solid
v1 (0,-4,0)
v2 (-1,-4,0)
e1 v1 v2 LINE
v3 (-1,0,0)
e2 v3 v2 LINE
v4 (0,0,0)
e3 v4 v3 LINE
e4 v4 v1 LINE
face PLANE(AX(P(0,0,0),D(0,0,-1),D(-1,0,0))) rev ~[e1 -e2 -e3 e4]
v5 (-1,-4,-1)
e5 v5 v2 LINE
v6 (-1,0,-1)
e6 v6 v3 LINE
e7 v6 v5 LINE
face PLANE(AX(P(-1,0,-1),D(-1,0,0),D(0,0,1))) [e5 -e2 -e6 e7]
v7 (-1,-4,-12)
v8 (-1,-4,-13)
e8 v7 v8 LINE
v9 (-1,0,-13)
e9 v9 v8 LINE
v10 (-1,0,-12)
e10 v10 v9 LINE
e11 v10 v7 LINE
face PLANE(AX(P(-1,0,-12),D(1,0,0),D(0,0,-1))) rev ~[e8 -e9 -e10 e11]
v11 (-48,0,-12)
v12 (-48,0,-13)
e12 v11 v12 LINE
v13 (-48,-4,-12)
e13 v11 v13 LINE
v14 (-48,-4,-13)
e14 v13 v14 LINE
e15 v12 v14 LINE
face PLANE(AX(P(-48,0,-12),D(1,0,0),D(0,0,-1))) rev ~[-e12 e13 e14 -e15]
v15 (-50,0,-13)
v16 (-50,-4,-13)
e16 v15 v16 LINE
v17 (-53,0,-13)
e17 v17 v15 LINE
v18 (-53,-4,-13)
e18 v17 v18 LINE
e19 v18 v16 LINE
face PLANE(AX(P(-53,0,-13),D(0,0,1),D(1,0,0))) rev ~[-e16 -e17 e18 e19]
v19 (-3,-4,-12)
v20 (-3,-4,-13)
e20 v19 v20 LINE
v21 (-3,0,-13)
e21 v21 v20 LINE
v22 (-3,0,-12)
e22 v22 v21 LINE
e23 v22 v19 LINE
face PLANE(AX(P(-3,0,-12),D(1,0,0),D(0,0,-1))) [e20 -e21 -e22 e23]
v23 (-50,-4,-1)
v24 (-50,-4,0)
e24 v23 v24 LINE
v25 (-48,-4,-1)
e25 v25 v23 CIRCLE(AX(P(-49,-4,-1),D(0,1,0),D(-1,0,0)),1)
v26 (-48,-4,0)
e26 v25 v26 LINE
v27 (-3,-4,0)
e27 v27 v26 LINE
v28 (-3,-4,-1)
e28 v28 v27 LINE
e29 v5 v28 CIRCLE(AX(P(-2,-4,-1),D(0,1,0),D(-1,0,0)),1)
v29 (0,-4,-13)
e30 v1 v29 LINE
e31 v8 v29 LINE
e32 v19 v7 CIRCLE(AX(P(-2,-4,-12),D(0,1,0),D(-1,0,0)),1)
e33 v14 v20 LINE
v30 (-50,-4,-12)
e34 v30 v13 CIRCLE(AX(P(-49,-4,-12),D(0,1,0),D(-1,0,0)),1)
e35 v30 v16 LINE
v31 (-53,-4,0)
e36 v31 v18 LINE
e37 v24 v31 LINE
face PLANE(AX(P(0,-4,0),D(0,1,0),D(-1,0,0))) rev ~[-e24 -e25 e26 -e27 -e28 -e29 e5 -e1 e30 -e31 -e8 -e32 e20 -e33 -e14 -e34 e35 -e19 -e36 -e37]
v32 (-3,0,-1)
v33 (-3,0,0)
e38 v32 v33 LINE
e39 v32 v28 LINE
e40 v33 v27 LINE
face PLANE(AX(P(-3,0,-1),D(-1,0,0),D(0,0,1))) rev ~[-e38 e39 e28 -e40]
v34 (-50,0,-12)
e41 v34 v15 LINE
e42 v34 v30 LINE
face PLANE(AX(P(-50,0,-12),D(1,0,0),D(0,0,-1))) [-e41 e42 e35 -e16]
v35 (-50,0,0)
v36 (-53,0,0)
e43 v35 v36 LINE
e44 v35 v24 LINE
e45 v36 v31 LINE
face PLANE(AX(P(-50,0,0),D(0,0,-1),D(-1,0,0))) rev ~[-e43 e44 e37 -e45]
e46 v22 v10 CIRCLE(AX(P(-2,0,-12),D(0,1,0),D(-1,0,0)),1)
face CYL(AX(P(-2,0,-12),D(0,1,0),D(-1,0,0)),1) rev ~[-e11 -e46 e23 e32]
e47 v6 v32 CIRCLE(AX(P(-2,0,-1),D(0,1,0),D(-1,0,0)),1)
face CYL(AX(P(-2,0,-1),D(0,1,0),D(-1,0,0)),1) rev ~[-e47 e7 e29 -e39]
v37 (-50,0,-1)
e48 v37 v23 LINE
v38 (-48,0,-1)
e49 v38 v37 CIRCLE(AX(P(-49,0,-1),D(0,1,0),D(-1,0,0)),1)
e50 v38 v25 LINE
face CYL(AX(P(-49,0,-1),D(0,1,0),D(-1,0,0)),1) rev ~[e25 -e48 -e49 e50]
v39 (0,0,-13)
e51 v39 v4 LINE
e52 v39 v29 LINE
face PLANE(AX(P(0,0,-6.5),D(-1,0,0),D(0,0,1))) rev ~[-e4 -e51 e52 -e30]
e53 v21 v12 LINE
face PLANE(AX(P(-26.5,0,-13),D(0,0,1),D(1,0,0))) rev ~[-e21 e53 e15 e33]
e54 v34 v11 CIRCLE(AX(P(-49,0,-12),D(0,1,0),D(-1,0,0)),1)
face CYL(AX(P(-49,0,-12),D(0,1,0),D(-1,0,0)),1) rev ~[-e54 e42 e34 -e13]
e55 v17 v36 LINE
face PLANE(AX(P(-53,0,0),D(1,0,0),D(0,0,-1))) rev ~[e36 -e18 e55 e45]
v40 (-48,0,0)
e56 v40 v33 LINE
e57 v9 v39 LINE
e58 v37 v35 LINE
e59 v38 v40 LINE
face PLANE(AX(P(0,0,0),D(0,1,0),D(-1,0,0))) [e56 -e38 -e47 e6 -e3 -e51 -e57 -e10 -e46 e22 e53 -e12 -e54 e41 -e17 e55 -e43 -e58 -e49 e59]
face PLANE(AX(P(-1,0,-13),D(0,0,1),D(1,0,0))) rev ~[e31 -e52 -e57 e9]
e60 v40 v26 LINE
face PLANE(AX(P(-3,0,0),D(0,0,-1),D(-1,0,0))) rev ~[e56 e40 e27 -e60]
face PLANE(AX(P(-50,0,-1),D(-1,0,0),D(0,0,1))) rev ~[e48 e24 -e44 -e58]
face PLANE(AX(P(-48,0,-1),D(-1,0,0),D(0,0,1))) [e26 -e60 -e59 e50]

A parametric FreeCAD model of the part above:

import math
import FreeCAD as App
import Part
import Sketcher

V = App.Vector
Q = App.Units.Quantity

doc = App.newDocument("Part")
body = doc.addObject("PartDesign::Body", "Body")

# Sketch on XZ plane
sketch1 = body.newObject("Sketcher::SketchObject", "Sketch")
sketch1.AttachmentSupport = (doc.getObject("XZ_Plane"), [""])
sketch1.MapMode = "FlatFace"
sketch1.addGeometry([
    Part.LineSegment(V(-1, 0, 0), V(0, 0, 0)),  # 0
    Part.LineSegment(V(0, 0, 0), V(0, -13, 0)),  # 1
    Part.LineSegment(V(0, -13, 0), V(-1, -13, 0)),  # 2
    Part.LineSegment(V(-1, -13, 0), V(-1, -12, 0)),  # 3
    Part.ArcOfCircle(Part.Circle(V(-2, -12, 0), V(0, 0, 1), 1), math.radians(0), math.radians(180)),  # 4
    Part.LineSegment(V(-3, -12, 0), V(-3, -13, 0)),  # 5
    Part.LineSegment(V(-3, -13, 0), V(-48, -13, 0)),  # 6
    Part.LineSegment(V(-48, -13, 0), V(-48, -12, 0)),  # 7
    Part.ArcOfCircle(Part.Circle(V(-49, -12, 0), V(0, 0, 1), 1), math.radians(0), math.radians(180)),  # 8
    Part.LineSegment(V(-50, -12, 0), V(-50, -13, 0)),  # 9
    Part.LineSegment(V(-50, -13, 0), V(-53, -13, 0)),  # 10
    Part.LineSegment(V(-53, -13, 0), V(-53, 0, 0)),  # 11
    Part.LineSegment(V(-53, 0, 0), V(-50, 0, 0)),  # 12
    Part.LineSegment(V(-50, 0, 0), V(-50, -1, 0)),  # 13
    Part.ArcOfCircle(Part.Circle(V(-49, -1, 0), V(0, 0, 1), 1), math.radians(180), math.radians(360)),  # 14
    Part.LineSegment(V(-48, -1, 0), V(-48, 0, 0)),  # 15
    Part.LineSegment(V(-48, 0, 0), V(-3, 0, 0)),  # 16
    Part.LineSegment(V(-3, 0, 0), V(-3, -1, 0)),  # 17
    Part.ArcOfCircle(Part.Circle(V(-2, -1, 0), V(0, 0, 1), 1), math.radians(180), math.radians(360)),  # 18
    Part.LineSegment(V(-1, -1, 0), V(-1, 0, 0)),  # 19
], False)
sketch1.addConstraint([
    Sketcher.Constraint("Coincident", 0, 2, 1, 1),
    Sketcher.Constraint("Coincident", 1, 2, 2, 1),
    Sketcher.Constraint("Coincident", 2, 2, 3, 1),
    Sketcher.Constraint("Tangent", 3, 2, 4, 1),
    Sketcher.Constraint("Tangent", 4, 2, 5, 1),
    Sketcher.Constraint("Coincident", 5, 2, 6, 1),
    Sketcher.Constraint("Coincident", 6, 2, 7, 1),
    Sketcher.Constraint("Tangent", 7, 2, 8, 1),
    Sketcher.Constraint("Tangent", 8, 2, 9, 1),
    Sketcher.Constraint("Coincident", 9, 2, 10, 1),
    Sketcher.Constraint("Coincident", 10, 2, 11, 1),
    Sketcher.Constraint("Coincident", 11, 2, 12, 1),
    Sketcher.Constraint("Coincident", 12, 2, 13, 1),
    Sketcher.Constraint("Tangent", 13, 2, 14, 1),
    Sketcher.Constraint("Tangent", 14, 2, 15, 1),
    Sketcher.Constraint("Coincident", 15, 2, 16, 1),
    Sketcher.Constraint("Coincident", 16, 2, 17, 1),
    Sketcher.Constraint("Tangent", 17, 2, 18, 1),
    Sketcher.Constraint("Tangent", 18, 2, 19, 1),
    Sketcher.Constraint("Coincident", 19, 2, 0, 1),
    Sketcher.Constraint("Horizontal", 0),
    Sketcher.Constraint("Vertical", 1),
    Sketcher.Constraint("Horizontal", 2),
    Sketcher.Constraint("Vertical", 3),
    Sketcher.Constraint("Vertical", 5),
    Sketcher.Constraint("Horizontal", 6),
    Sketcher.Constraint("Vertical", 7),
    Sketcher.Constraint("Vertical", 9),
    Sketcher.Constraint("Horizontal", 10),
    Sketcher.Constraint("Vertical", 11),
    Sketcher.Constraint("Horizontal", 12),
    Sketcher.Constraint("Vertical", 13),
    Sketcher.Constraint("Vertical", 15),
    Sketcher.Constraint("Horizontal", 16),
    Sketcher.Constraint("Vertical", 17),
    Sketcher.Constraint("Vertical", 19),
    Sketcher.Constraint("Coincident", 0, 2, -1, 1),
    Sketcher.Constraint("Equal", 4, 8),
    Sketcher.Constraint("Equal", 8, 14),
    Sketcher.Constraint("Equal", 14, 18),
    Sketcher.Constraint("PointOnObject", 11, 2, -1),
    Sketcher.Constraint("PointOnObject", 15, 2, -1),
    Sketcher.Constraint("Horizontal", 4, 3, 8, 3),
    Sketcher.Constraint("Horizontal", 14, 3, 18, 3),
    Sketcher.Constraint("Horizontal", 2, 2, 5, 2),
    Sketcher.Constraint("Horizontal", 6, 2, 9, 2),
    Sketcher.Constraint("Vertical", 8, 3, 14, 3),
    Sketcher.Constraint("Vertical", 4, 3, 18, 3),
    Sketcher.Constraint("Equal", 2, 3),
    Sketcher.Constraint("Equal", 9, 13),
    Sketcher.Constraint("Radius", 4, Q("1 mm")),
    Sketcher.Constraint("DistanceY", 1, 2, 1, 1, Q("13 mm")),
    Sketcher.Constraint("DistanceX", 4, 3, -1, 1, Q("2 mm")),
    Sketcher.Constraint("DistanceX", 10, 2, -1, 1, Q("53 mm")),
    Sketcher.Constraint("DistanceX", 10, 2, 8, 3, Q("4 mm")),
])
pad1 = body.newObject("PartDesign::Pad", "Pad")
pad1.Profile = sketch1
pad1.Length = 4

doc.recompute()
